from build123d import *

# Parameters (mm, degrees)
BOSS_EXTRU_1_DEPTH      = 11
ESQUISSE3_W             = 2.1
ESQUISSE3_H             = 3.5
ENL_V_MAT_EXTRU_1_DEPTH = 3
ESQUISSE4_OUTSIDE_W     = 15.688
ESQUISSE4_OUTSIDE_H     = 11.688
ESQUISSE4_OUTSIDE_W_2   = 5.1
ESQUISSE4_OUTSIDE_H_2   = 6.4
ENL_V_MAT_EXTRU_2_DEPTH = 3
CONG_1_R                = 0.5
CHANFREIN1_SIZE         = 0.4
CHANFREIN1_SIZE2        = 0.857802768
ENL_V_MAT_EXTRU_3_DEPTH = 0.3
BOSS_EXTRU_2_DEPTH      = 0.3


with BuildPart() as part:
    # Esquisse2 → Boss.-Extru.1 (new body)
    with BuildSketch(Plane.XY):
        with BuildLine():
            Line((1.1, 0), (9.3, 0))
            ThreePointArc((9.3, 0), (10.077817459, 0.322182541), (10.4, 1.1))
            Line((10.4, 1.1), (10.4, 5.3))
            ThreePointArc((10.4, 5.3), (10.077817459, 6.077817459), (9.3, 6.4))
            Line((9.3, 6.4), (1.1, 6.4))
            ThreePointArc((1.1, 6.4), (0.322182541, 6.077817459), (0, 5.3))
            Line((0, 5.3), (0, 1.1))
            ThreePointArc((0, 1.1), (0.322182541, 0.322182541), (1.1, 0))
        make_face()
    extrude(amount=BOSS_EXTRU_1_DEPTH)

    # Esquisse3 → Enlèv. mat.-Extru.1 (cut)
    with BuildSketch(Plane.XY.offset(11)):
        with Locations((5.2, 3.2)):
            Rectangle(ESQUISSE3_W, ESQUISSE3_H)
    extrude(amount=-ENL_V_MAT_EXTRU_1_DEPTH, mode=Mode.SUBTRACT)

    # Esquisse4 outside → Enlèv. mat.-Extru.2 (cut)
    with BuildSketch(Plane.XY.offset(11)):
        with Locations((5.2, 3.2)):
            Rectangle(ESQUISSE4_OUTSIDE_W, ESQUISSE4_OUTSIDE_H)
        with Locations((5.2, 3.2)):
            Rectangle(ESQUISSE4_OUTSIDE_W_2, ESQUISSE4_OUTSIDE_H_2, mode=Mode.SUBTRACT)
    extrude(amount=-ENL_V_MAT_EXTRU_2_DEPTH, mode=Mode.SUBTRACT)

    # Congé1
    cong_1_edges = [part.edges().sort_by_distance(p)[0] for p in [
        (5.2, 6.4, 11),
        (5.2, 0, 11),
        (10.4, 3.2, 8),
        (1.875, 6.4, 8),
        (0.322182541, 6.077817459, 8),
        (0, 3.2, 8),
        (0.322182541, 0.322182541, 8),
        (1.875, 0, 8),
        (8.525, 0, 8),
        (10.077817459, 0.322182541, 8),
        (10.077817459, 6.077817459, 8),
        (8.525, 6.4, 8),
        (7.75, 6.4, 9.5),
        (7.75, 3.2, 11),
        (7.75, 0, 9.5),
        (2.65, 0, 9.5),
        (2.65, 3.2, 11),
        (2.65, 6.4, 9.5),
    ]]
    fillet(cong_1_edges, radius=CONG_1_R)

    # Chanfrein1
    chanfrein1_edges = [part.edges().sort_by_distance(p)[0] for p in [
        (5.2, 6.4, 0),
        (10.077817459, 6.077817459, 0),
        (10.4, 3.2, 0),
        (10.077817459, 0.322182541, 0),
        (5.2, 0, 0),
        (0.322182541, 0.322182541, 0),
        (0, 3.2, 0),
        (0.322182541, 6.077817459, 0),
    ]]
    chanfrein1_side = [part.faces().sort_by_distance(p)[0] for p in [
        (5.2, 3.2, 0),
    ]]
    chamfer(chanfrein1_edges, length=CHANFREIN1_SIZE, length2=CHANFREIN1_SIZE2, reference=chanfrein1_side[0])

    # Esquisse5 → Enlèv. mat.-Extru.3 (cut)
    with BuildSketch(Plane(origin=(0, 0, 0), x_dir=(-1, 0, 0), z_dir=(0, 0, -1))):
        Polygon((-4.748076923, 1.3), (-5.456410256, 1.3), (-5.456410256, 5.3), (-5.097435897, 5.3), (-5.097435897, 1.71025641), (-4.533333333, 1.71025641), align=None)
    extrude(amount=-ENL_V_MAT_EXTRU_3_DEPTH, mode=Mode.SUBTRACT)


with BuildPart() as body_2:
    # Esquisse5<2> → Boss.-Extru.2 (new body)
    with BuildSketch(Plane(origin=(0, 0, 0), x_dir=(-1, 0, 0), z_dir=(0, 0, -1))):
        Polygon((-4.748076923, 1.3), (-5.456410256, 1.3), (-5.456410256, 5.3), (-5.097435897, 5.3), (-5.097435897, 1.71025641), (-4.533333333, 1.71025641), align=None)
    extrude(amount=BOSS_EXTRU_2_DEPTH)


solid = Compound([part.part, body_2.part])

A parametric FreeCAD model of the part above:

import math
import FreeCAD as App
import Part
import Sketcher
from FreeCAD import Vector


def edges_at(feature, points):
    """Names of the edges that pass closest to the given points."""
    edges = feature.Shape.Edges
    near = lambda p: min(range(len(edges)), key=lambda i: edges[i].distToShape(Part.Vertex(*p))[0])
    return sorted({f"Edge{near(p) + 1}" for p in points})

doc = App.newDocument("Part")
body = doc.addObject("PartDesign::Body", "Body")

# Sketch on XY plane
sketch1 = body.newObject("Sketcher::SketchObject", "Sketch")
sketch1.AttachmentSupport = (doc.getObject("XY_Plane"), [""])
sketch1.MapMode = "FlatFace"
sketch1.addGeometry(Part.LineSegment(Vector(1.1, 0, 0), Vector(9.3, 0, 0)), False)
sketch1.addGeometry(Part.ArcOfCircle(Part.Circle(Vector(9.3, 1.1, 0), Vector(0, 0, 1), 1.1), math.radians(-90), math.radians(0)), False)
sketch1.addGeometry(Part.LineSegment(Vector(10.4, 1.1, 0), Vector(10.4, 5.3, 0)), False)
sketch1.addGeometry(Part.ArcOfCircle(Part.Circle(Vector(9.3, 5.3, 0), Vector(0, 0, 1), 1.1), math.radians(0), math.radians(90)), False)
sketch1.addGeometry(Part.LineSegment(Vector(9.3, 6.4, 0), Vector(1.1, 6.4, 0)), False)
sketch1.addGeometry(Part.ArcOfCircle(Part.Circle(Vector(1.1, 5.3, 0), Vector(0, 0, 1), 1.1), math.radians(90), math.radians(180)), False)
sketch1.addGeometry(Part.LineSegment(Vector(0, 5.3, 0), Vector(0, 1.1, 0)), False)
sketch1.addGeometry(Part.ArcOfCircle(Part.Circle(Vector(1.1, 1.1, 0), Vector(0, 0, 1), 1.1), math.radians(-180), math.radians(-90)), False)
sketch1.addConstraint(Sketcher.Constraint("Tangent", 0, 2, 1, 1))
sketch1.addConstraint(Sketcher.Constraint("Tangent", 1, 2, 2, 1))
sketch1.addConstraint(Sketcher.Constraint("Tangent", 2, 2, 3, 1))
sketch1.addConstraint(Sketcher.Constraint("Tangent", 3, 2, 4, 1))
sketch1.addConstraint(Sketcher.Constraint("Tangent", 4, 2, 5, 1))
sketch1.addConstraint(Sketcher.Constraint("Tangent", 5, 2, 6, 1))
sketch1.addConstraint(Sketcher.Constraint("Tangent", 6, 2, 7, 1))
sketch1.addConstraint(Sketcher.Constraint("Tangent", 7, 2, 0, 1))
sketch1.addConstraint(Sketcher.Constraint("Horizontal", 0))
sketch1.addConstraint(Sketcher.Constraint("Vertical", 2))
sketch1.addConstraint(Sketcher.Constraint("Horizontal", 4))
sketch1.addConstraint(Sketcher.Constraint("Vertical", 6))
sketch1.addConstraint(Sketcher.Constraint("Equal", 1, 3))
sketch1.addConstraint(Sketcher.Constraint("Equal", 3, 5))
sketch1.addConstraint(Sketcher.Constraint("Equal", 5, 7))
sketch1.addConstraint(Sketcher.Constraint("PointOnObject", 0, 2, -1))
sketch1.addConstraint(Sketcher.Constraint("PointOnObject", 5, 2, -2))
sketch1.addConstraint(Sketcher.Constraint("Radius", 1, 1.1))
sketch1.addConstraint(Sketcher.Constraint("DistanceX", 0, 1, 0, 2, 8.2))
sketch1.addConstraint(Sketcher.Constraint("DistanceY", 2, 1, 2, 2, 4.2))
pad1 = body.newObject("PartDesign::Pad", "Pad")
pad1.Profile = sketch1
pad1.Length = 11

# Sketch on XY plane
sketch2 = body.newObject("Sketcher::SketchObject", "Sketch001")
sketch2.AttachmentSupport = (doc.getObject("XY_Plane"), [""])
sketch2.MapMode = "FlatFace"
sketch2.AttachmentOffset = App.Placement(Vector(0, 0, 11), App.Rotation())
sketch2.addGeometry(Part.LineSegment(Vector(4.2, 5, 0), Vector(4.2, 1.4, 0)), False)
sketch2.addGeometry(Part.LineSegment(Vector(4.2, 1.4, 0), Vector(6.2, 1.4, 0)), False)
sketch2.addGeometry(Part.LineSegment(Vector(6.2, 1.4, 0), Vector(6.2, 5, 0)), False)
sketch2.addGeometry(Part.LineSegment(Vector(6.2, 5, 0), Vector(4.2, 5, 0)), False)
sketch2.addConstraint(Sketcher.Constraint("Coincident", 0, 2, 1, 1))
sketch2.addConstraint(Sketcher.Constraint("Coincident", 1, 2, 2, 1))
sketch2.addConstraint(Sketcher.Constraint("Coincident", 2, 2, 3, 1))
sketch2.addConstraint(Sketcher.Constraint("Coincident", 3, 2, 0, 1))
sketch2.addConstraint(Sketcher.Constraint("Vertical", 0))
sketch2.addConstraint(Sketcher.Constraint("Horizontal", 1))
sketch2.addConstraint(Sketcher.Constraint("Vertical", 2))
sketch2.addConstraint(Sketcher.Constraint("Horizontal", 3))
sketch2.addConstraint(Sketcher.Constraint("DistanceX", 1, 1, 1, 2, 2.1))
sketch2.addConstraint(Sketcher.Constraint("DistanceY", 0, 2, 0, 1, 3.5))
sketch2.addConstraint(Sketcher.Constraint("DistanceX", -1, 1, 0, 2, 4.15))
sketch2.addConstraint(Sketcher.Constraint("DistanceY", -1, 1, 0, 2, 1.45))
pocket1 = body.newObject("PartDesign::Pocket", "Pocket")
pocket1.Profile = sketch2
pocket1.Length = 3

# Sketch on XY plane
sketch3 = body.newObject("Sketcher::SketchObject", "Sketch002")
sketch3.AttachmentSupport = (doc.getObject("XY_Plane"), [""])
sketch3.MapMode = "FlatFace"
sketch3.AttachmentOffset = App.Placement(Vector(0, 0, 11), App.Rotation())
sketch3.addGeometry(Part.LineSegment(Vector(-3, 9, 0), Vector(-3, -3, 0)), False)
sketch3.addGeometry(Part.LineSegment(Vector(-3, -3, 0), Vector(13, -3, 0)), False)
sketch3.addGeometry(Part.LineSegment(Vector(13, -3, 0), Vector(13, 9, 0)), False)
sketch3.addGeometry(Part.LineSegment(Vector(13, 9, 0), Vector(-3, 9, 0)), False)
sketch3.addGeometry(Part.LineSegment(Vector(8, 0, 0), Vector(3, 0, 0)), False)
sketch3.addGeometry(Part.LineSegment(Vector(3, 0, 0), Vector(3, 6, 0)), False)
sketch3.addGeometry(Part.LineSegment(Vector(3, 6, 0), Vector(8, 6, 0)), False)
sketch3.addGeometry(Part.LineSegment(Vector(8, 6, 0), Vector(8, 0, 0)), False)
sketch3.addConstraint(Sketcher.Constraint("Coincident", 0, 2, 1, 1))
sketch3.addConstraint(Sketcher.Constraint("Coincident", 1, 2, 2, 1))
sketch3.addConstraint(Sketcher.Constraint("Coincident", 2, 2, 3, 1))
sketch3.addConstraint(Sketcher.Constraint("Coincident", 3, 2, 0, 1))
sketch3.addConstraint(Sketcher.Constraint("Coincident", 4, 2, 5, 1))
sketch3.addConstraint(Sketcher.Constraint("Coincident", 5, 2, 6, 1))
sketch3.addConstraint(Sketcher.Constraint("Coincident", 6, 2, 7, 1))
sketch3.addConstraint(Sketcher.Constraint("Coincident", 7, 2, 4, 1))
sketch3.addConstraint(Sketcher.Constraint("Vertical", 0))
sketch3.addConstraint(Sketcher.Constraint("Horizontal", 1))
sketch3.addConstraint(Sketcher.Constraint("Vertical", 2))
sketch3.addConstraint(Sketcher.Constraint("Horizontal", 3))
sketch3.addConstraint(Sketcher.Constraint("Horizontal", 4))
sketch3.addConstraint(Sketcher.Constraint("Vertical", 5))
sketch3.addConstraint(Sketcher.Constraint("Horizontal", 6))
sketch3.addConstraint(Sketcher.Constraint("Vertical", 7))
sketch3.addConstraint(Sketcher.Constraint("PointOnObject", 4, 2, -1))
sketch3.addConstraint(Sketcher.Constraint("DistanceX", 4, 2, 4, 1, 5.1))
sketch3.addConstraint(Sketcher.Constraint("DistanceY", 5, 1, 5, 2, 6.4))
sketch3.addConstraint(Sketcher.Constraint("DistanceX", 1, 1, 1, 2, 15.688))
sketch3.addConstraint(Sketcher.Constraint("DistanceY", 0, 2, 0, 1, 11.688))
sketch3.addConstraint(Sketcher.Constraint("DistanceX", -1, 1, 4, 2, 2.65))
sketch3.addConstraint(Sketcher.Constraint("DistanceX", 0, 2, -1, 1, 2.644))
sketch3.addConstraint(Sketcher.Constraint("DistanceY", 0, 2, -1, 1, 2.644))
pocket2 = body.newObject("PartDesign::Pocket", "Pocket001")
pocket2.Profile = sketch3
pocket2.Length = 3
doc.recompute()

fillet = body.newObject("PartDesign::Fillet", "Fillet")
fillet.Base = (pocket2, edges_at(pocket2, [
    (5.2, 6.4, 11),
    (5.2, 0, 11),
    (10.4, 3.2, 8),
    (1.875, 6.4, 8),
    (0.322, 6.078, 8),
    (0, 3.2, 8),
    (0.322, 0.322, 8),
    (1.875, 0, 8),
    (8.525, 0, 8),
    (10.078, 0.322, 8),
    (10.078, 6.078, 8),
    (8.525, 6.4, 8),
    (7.75, 6.4, 9.5),
    (7.75, 3.2, 11),
    (7.75, 0, 9.5),
    (2.65, 0, 9.5),
    (2.65, 3.2, 11),
    (2.65, 6.4, 9.5),
]))
fillet.Radius = 0.5
doc.recompute()

chamfer = body.newObject("PartDesign::Chamfer", "Chamfer")
chamfer.Base = (fillet, edges_at(fillet, [
    (5.2, 6.4, 0),
    (10.078, 6.078, 0),
    (10.4, 3.2, 0),
    (10.078, 0.322, 0),
    (5.2, 0, 0),
    (0.322, 0.322, 0),
    (0, 3.2, 0),
    (0.322, 6.078, 0),
]))
chamfer.ChamferType = "Two distances"
chamfer.Size = 0.4
chamfer.Size2 = 0.857803

# Sketch on XY plane
sketch4 = body.newObject("Sketcher::SketchObject", "Sketch003")
sketch4.AttachmentSupport = (doc.getObject("XY_Plane"), [""])
sketch4.MapMode = "FlatFace"
sketch4.addGeometry(Part.LineSegment(Vector(5.46, 1.3, 0), Vector(4.75, 1.3, 0)), False)
sketch4.addGeometry(Part.LineSegment(Vector(4.75, 1.3, 0), Vector(4.53, 1.71, 0)), False)
sketch4.addGeometry(Part.LineSegment(Vector(4.53, 1.71, 0), Vector(5.1, 1.71, 0)), False)
sketch4.addGeometry(Part.LineSegment(Vector(5.1, 1.71, 0), Vector(5.1, 5.3, 0)), False)
sketch4.addGeometry(Part.LineSegment(Vector(5.1, 5.3, 0), Vector(5.46, 5.3, 0)), False)
sketch4.addGeometry(Part.LineSegment(Vector(5.46, 5.3, 0), Vector(5.46, 1.3, 0)), False)
sketch4.addConstraint(Sketcher.Constraint("Coincident", 0, 2, 1, 1))
sketch4.addConstraint(Sketcher.Constraint("Coincident", 1, 2, 2, 1))
sketch4.addConstraint(Sketcher.Constraint("Coincident", 2, 2, 3, 1))
sketch4.addConstraint(Sketcher.Constraint("Coincident", 3, 2, 4, 1))
sketch4.addConstraint(Sketcher.Constraint("Coincident", 4, 2, 5, 1))
sketch4.addConstraint(Sketcher.Constraint("Coincident", 5, 2, 0, 1))
sketch4.addConstraint(Sketcher.Constraint("Horizontal", 0))
sketch4.addConstraint(Sketcher.Constraint("Horizontal", 2))
sketch4.addConstraint(Sketcher.Constraint("Vertical", 3))
sketch4.addConstraint(Sketcher.Constraint("Horizontal", 4))
sketch4.addConstraint(Sketcher.Constraint("Vertical", 5))
sketch4.addConstraint(Sketcher.Constraint("DistanceY", 5, 2, 5, 1, 4.0))
sketch4.addConstraint(Sketcher.Constraint("DistanceY", -1, 1, 0, 2, 1.3))
sketch4.addConstraint(Sketcher.Constraint("Distance", 1, 0.463061))
sketch4.addConstraint(Sketcher.Constraint("DistanceX", 0, 2, 0, 1, 0.708333))
sketch4.addConstraint(Sketcher.Constraint("DistanceX", 2, 1, 2, 2, 0.564103))
sketch4.addConstraint(Sketcher.Constraint("DistanceX", 4, 1, 4, 2, 0.358974))
sketch4.addConstraint(Sketcher.Constraint("DistanceX", -1, 1, 4, 2, 5.45641))
pocket3 = body.newObject("PartDesign::Pocket", "Pocket002")
pocket3.Profile = sketch4
pocket3.Length = 0.3
pocket3.Reversed = True
body2 = doc.addObject("PartDesign::Body", "Body001")

# Sketch on XY plane
sketch5 = body2.newObject("Sketcher::SketchObject", "Sketch004")
sketch5.AttachmentSupport = (doc.getObject("XY_Plane001"), [""])
sketch5.MapMode = "FlatFace"
sketch5.addGeometry(Part.LineSegment(Vector(5.46, 1.3, 0), Vector(4.75, 1.3, 0)), False)
sketch5.addGeometry(Part.LineSegment(Vector(4.75, 1.3, 0), Vector(4.53, 1.71, 0)), False)
sketch5.addGeometry(Part.LineSegment(Vector(4.53, 1.71, 0), Vector(5.1, 1.71, 0)), False)
sketch5.addGeometry(Part.LineSegment(Vector(5.1, 1.71, 0), Vector(5.1, 5.3, 0)), False)
sketch5.addGeometry(Part.LineSegment(Vector(5.1, 5.3, 0), Vector(5.46, 5.3, 0)), False)
sketch5.addGeometry(Part.LineSegment(Vector(5.46, 5.3, 0), Vector(5.46, 1.3, 0)), False)
sketch5.addConstraint(Sketcher.Constraint("Coincident", 0, 2, 1, 1))
sketch5.addConstraint(Sketcher.Constraint("Coincident", 1, 2, 2, 1))
sketch5.addConstraint(Sketcher.Constraint("Coincident", 2, 2, 3, 1))
sketch5.addConstraint(Sketcher.Constraint("Coincident", 3, 2, 4, 1))
sketch5.addConstraint(Sketcher.Constraint("Coincident", 4, 2, 5, 1))
sketch5.addConstraint(Sketcher.Constraint("Coincident", 5, 2, 0, 1))
sketch5.addConstraint(Sketcher.Constraint("Horizontal", 0))
sketch5.addConstraint(Sketcher.Constraint("Horizontal", 2))
sketch5.addConstraint(Sketcher.Constraint("Vertical", 3))
sketch5.addConstraint(Sketcher.Constraint("Horizontal", 4))
sketch5.addConstraint(Sketcher.Constraint("Vertical", 5))
sketch5.addConstraint(Sketcher.Constraint("DistanceY", 5, 2, 5, 1, 4.0))
sketch5.addConstraint(Sketcher.Constraint("DistanceY", -1, 1, 0, 2, 1.3))
sketch5.addConstraint(Sketcher.Constraint("Distance", 1, 0.463061))
sketch5.addConstraint(Sketcher.Constraint("DistanceX", 0, 2, 0, 1, 0.708333))
sketch5.addConstraint(Sketcher.Constraint("DistanceX", 2, 1, 2, 2, 0.564103))
sketch5.addConstraint(Sketcher.Constraint("DistanceX", 4, 1, 4, 2, 0.358974))
sketch5.addConstraint(Sketcher.Constraint("DistanceX", -1, 1, 4, 2, 5.45641))
pad2 = body2.newObject("PartDesign::Pad", "Pad001")
pad2.Profile = sketch5
pad2.Length = 0.3
pad2.Reversed = True

doc.recompute()
